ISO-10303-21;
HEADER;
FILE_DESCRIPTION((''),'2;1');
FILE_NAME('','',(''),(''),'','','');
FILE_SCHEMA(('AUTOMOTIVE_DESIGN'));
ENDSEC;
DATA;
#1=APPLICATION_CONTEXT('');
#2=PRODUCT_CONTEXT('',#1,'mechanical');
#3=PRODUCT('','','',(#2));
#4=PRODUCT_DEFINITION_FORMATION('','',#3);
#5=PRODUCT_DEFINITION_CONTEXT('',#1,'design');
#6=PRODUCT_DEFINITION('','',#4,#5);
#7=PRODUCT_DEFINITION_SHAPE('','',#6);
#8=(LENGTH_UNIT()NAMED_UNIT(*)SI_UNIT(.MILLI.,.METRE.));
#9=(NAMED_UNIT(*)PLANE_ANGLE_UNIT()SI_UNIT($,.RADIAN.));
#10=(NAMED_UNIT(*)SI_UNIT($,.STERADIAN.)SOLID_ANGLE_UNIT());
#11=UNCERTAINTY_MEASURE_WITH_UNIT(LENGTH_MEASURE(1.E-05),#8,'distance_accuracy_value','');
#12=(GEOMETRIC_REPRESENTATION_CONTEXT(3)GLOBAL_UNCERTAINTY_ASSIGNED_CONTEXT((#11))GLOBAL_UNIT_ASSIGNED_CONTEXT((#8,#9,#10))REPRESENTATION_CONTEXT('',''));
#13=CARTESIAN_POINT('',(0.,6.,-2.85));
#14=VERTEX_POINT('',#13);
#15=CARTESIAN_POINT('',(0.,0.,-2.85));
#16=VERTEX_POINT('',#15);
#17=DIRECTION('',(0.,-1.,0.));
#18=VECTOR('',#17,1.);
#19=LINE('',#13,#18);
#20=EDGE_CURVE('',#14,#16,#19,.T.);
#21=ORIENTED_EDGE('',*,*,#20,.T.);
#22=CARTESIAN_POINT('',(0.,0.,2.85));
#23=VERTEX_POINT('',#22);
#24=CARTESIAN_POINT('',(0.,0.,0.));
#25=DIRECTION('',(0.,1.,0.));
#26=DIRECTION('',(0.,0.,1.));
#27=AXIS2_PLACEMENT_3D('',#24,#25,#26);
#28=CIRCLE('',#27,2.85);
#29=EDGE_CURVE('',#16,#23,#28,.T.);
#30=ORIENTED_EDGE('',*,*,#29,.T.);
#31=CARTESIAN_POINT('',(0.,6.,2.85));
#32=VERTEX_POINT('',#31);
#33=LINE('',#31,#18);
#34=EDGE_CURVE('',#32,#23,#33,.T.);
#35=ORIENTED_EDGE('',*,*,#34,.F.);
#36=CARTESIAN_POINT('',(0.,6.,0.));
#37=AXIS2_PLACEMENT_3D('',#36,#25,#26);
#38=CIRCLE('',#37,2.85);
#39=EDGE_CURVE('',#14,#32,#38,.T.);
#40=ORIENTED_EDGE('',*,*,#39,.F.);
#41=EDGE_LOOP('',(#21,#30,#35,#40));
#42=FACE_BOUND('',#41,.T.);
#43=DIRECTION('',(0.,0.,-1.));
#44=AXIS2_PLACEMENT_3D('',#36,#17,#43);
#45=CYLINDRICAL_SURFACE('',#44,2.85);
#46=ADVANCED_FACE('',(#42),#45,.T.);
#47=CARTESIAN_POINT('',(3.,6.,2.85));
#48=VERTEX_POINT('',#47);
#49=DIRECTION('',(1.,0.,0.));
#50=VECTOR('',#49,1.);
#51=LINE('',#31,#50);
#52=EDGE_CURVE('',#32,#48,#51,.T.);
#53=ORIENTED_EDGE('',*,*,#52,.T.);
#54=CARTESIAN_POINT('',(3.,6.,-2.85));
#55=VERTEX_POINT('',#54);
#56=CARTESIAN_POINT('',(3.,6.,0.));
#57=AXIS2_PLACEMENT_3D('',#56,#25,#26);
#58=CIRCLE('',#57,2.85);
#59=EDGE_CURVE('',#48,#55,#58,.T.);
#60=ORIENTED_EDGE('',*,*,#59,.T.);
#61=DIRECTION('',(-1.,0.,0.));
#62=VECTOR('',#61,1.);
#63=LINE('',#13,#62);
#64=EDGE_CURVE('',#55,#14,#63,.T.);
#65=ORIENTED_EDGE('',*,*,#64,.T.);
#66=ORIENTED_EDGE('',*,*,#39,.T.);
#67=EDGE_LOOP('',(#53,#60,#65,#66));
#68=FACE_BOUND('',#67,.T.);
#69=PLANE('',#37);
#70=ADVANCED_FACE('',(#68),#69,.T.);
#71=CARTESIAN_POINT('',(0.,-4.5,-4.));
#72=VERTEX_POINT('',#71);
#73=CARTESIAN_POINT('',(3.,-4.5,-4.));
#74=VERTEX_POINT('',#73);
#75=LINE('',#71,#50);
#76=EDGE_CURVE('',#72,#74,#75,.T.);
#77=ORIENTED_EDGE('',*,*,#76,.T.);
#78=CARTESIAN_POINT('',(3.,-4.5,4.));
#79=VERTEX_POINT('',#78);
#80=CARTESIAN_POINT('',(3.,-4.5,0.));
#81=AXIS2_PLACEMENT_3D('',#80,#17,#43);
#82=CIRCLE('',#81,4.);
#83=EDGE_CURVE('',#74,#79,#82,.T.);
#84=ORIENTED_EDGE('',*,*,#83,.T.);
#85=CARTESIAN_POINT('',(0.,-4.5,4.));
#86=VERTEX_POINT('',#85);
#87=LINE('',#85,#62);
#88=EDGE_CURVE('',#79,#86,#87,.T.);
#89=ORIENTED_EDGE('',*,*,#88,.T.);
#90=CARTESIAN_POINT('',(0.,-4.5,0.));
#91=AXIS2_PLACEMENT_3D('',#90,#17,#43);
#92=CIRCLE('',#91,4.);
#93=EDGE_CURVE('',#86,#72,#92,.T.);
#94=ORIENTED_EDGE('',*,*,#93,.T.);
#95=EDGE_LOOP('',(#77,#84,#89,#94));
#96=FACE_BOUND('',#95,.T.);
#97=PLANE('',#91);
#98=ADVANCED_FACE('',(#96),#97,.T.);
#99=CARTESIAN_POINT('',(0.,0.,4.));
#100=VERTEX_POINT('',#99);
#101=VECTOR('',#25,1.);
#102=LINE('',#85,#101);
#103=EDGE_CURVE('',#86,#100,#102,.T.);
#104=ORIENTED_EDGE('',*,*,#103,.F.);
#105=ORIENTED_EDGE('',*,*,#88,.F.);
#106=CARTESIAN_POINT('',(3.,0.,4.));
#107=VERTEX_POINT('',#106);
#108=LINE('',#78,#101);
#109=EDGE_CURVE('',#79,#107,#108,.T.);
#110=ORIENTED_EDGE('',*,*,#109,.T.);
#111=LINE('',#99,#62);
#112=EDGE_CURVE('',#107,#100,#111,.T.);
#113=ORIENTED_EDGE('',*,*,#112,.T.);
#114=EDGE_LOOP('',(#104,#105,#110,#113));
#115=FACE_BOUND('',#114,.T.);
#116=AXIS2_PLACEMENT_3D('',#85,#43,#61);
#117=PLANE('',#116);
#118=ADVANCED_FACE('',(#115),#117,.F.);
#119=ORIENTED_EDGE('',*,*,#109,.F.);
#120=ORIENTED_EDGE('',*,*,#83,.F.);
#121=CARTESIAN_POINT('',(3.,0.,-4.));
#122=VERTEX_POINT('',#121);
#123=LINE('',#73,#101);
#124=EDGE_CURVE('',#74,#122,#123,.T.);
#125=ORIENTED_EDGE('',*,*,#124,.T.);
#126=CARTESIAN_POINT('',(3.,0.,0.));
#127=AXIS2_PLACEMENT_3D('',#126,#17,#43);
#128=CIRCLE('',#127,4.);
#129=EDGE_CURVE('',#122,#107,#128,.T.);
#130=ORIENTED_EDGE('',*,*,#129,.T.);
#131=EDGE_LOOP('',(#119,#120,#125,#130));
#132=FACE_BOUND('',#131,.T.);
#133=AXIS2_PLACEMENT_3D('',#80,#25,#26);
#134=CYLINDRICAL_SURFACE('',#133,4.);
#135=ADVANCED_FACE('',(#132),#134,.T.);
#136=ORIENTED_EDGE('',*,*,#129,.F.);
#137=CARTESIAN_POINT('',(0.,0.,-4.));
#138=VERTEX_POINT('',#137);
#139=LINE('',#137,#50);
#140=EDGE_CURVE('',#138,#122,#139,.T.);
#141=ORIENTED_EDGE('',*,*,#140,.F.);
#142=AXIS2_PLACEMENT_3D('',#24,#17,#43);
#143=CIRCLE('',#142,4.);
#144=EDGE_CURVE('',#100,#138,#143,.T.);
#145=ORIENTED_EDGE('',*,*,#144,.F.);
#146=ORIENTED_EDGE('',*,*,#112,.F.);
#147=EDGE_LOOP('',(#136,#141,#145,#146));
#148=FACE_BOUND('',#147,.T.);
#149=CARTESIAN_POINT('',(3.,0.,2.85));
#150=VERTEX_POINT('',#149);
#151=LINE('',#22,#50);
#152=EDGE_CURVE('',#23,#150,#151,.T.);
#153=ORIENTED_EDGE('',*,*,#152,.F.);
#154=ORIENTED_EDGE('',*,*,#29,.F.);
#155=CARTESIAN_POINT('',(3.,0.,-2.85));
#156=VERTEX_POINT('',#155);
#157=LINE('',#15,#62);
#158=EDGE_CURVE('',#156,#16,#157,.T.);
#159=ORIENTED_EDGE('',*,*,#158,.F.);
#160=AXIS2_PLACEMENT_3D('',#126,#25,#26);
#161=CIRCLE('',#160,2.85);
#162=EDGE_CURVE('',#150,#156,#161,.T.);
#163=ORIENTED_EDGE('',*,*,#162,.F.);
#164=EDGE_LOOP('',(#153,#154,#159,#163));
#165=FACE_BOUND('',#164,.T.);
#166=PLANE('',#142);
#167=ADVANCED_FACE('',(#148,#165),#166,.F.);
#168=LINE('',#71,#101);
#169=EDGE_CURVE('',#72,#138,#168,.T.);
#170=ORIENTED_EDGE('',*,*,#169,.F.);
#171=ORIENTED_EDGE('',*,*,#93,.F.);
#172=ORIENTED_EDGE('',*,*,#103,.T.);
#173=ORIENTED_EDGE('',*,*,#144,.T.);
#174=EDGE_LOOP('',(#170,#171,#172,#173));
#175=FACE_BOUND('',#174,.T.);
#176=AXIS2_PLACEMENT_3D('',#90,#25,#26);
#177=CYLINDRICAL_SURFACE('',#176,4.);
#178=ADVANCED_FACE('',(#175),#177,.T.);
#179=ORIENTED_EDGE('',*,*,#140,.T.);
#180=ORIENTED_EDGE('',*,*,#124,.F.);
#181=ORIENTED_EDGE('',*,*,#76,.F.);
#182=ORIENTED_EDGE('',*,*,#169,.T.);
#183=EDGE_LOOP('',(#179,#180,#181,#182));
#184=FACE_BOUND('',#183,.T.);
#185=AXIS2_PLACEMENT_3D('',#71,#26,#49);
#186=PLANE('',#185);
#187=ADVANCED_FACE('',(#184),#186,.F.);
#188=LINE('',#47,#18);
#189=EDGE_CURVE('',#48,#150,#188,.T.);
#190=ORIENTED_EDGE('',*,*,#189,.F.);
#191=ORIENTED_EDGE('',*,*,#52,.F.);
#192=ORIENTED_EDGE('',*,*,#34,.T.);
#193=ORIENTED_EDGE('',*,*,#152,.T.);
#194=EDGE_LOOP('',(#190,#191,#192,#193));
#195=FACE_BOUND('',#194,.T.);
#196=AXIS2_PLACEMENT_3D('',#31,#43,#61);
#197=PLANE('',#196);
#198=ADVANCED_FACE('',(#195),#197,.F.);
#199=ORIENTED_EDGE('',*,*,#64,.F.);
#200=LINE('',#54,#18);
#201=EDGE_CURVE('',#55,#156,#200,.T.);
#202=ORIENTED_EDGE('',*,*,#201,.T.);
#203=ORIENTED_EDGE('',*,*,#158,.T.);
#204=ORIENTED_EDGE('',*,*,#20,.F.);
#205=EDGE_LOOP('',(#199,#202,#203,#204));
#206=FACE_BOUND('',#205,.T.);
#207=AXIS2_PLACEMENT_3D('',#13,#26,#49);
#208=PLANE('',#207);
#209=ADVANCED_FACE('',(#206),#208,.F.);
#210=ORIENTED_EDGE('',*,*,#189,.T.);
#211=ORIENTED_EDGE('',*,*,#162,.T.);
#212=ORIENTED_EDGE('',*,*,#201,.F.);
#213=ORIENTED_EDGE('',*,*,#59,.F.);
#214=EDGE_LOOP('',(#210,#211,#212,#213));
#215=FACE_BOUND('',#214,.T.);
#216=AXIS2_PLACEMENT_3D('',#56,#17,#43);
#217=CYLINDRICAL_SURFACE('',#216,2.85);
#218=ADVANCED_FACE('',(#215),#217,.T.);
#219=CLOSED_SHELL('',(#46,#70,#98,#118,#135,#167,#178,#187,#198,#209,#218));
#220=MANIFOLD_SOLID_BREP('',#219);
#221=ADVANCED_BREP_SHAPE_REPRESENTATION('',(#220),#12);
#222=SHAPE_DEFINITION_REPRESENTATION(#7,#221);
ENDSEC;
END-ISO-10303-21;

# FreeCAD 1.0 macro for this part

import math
import FreeCAD as App
import Part
import Sketcher

V = App.Vector
Q = App.Units.Quantity

doc = App.newDocument("Part")
body = doc.addObject("PartDesign::Body", "Body")

# Sketch on XZ plane
sketch1 = body.newObject("Sketcher::SketchObject", "Sketch")
sketch1.AttachmentSupport = (doc.getObject("XZ_Plane"), [""])
sketch1.MapMode = "FlatFace"
sketch1.addGeometry(Part.LineSegment(V(3, -2.85, 0), V(0, -2.85, 0)), False)
sketch1.addGeometry(Part.ArcOfCircle(Part.Circle(V(0, 0, 0), V(0, 0, 1), 2.85), math.radians(90), math.radians(270)), False)
sketch1.addGeometry(Part.LineSegment(V(0, 2.85, 0), V(3, 2.85, 0)), False)
sketch1.addGeometry(Part.ArcOfCircle(Part.Circle(V(3, 0, 0), V(0, 0, 1), 2.85), math.radians(-90), math.radians(90)), False)
sketch1.addConstraint(Sketcher.Constraint("Tangent", 0, 2, 1, 2))
sketch1.addConstraint(Sketcher.Constraint("Tangent", 1, 1, 2, 1))
sketch1.addConstraint(Sketcher.Constraint("Tangent", 2, 2, 3, 2))
sketch1.addConstraint(Sketcher.Constraint("Tangent", 3, 1, 0, 1))
sketch1.addConstraint(Sketcher.Constraint("Horizontal", 0))
sketch1.addConstraint(Sketcher.Constraint("Horizontal", 2))
sketch1.addConstraint(Sketcher.Constraint("Coincident", 1, 3, -1, 1))
sketch1.addConstraint(Sketcher.Constraint("DistanceX", 0, 2, 0, 1, Q("3 mm")))
sketch1.addConstraint(Sketcher.Constraint("Radius", 1, Q("2.85 mm")))
pad1 = body.newObject("PartDesign::Pad", "Pad")
pad1.Profile = sketch1
pad1.Length = 6
pad1.Reversed = True

# Sketch on XZ plane
sketch2 = body.newObject("Sketcher::SketchObject", "Sketch001")
sketch2.AttachmentSupport = (doc.getObject("XZ_Plane"), [""])
sketch2.MapMode = "FlatFace"
sketch2.addGeometry(Part.LineSegment(V(3, 4, 0), V(0, 4, 0)), False)
sketch2.addGeometry(Part.ArcOfCircle(Part.Circle(V(0, 0, 0), V(0, 0, 1), 4), math.radians(90), math.radians(270)), False)
sketch2.addGeometry(Part.LineSegment(V(0, -4, 0), V(3, -4, 0)), False)
sketch2.addGeometry(Part.ArcOfCircle(Part.Circle(V(3, 0, 0), V(0, 0, 1), 4), math.radians(-90), math.radians(90)), False)
sketch2.addConstraint(Sketcher.Constraint("Tangent", 0, 2, 1, 1))
sketch2.addConstraint(Sketcher.Constraint("Tangent", 1, 2, 2, 1))
sketch2.addConstraint(Sketcher.Constraint("Tangent", 2, 2, 3, 1))
sketch2.addConstraint(Sketcher.Constraint("Tangent", 3, 2, 0, 1))
sketch2.addConstraint(Sketcher.Constraint("Horizontal", 0))
sketch2.addConstraint(Sketcher.Constraint("Horizontal", 2))
sketch2.addConstraint(Sketcher.Constraint("Coincident", 1, 3, -1, 1))
sketch2.addConstraint(Sketcher.Constraint("Radius", 1, Q("4 mm")))
sketch2.addConstraint(Sketcher.Constraint("DistanceX", 0, 2, 0, 1, Q("3 mm")))
pad2 = body.newObject("PartDesign::Pad", "Pad001")
pad2.Profile = sketch2
pad2.Length = 4.5

doc.recompute()
